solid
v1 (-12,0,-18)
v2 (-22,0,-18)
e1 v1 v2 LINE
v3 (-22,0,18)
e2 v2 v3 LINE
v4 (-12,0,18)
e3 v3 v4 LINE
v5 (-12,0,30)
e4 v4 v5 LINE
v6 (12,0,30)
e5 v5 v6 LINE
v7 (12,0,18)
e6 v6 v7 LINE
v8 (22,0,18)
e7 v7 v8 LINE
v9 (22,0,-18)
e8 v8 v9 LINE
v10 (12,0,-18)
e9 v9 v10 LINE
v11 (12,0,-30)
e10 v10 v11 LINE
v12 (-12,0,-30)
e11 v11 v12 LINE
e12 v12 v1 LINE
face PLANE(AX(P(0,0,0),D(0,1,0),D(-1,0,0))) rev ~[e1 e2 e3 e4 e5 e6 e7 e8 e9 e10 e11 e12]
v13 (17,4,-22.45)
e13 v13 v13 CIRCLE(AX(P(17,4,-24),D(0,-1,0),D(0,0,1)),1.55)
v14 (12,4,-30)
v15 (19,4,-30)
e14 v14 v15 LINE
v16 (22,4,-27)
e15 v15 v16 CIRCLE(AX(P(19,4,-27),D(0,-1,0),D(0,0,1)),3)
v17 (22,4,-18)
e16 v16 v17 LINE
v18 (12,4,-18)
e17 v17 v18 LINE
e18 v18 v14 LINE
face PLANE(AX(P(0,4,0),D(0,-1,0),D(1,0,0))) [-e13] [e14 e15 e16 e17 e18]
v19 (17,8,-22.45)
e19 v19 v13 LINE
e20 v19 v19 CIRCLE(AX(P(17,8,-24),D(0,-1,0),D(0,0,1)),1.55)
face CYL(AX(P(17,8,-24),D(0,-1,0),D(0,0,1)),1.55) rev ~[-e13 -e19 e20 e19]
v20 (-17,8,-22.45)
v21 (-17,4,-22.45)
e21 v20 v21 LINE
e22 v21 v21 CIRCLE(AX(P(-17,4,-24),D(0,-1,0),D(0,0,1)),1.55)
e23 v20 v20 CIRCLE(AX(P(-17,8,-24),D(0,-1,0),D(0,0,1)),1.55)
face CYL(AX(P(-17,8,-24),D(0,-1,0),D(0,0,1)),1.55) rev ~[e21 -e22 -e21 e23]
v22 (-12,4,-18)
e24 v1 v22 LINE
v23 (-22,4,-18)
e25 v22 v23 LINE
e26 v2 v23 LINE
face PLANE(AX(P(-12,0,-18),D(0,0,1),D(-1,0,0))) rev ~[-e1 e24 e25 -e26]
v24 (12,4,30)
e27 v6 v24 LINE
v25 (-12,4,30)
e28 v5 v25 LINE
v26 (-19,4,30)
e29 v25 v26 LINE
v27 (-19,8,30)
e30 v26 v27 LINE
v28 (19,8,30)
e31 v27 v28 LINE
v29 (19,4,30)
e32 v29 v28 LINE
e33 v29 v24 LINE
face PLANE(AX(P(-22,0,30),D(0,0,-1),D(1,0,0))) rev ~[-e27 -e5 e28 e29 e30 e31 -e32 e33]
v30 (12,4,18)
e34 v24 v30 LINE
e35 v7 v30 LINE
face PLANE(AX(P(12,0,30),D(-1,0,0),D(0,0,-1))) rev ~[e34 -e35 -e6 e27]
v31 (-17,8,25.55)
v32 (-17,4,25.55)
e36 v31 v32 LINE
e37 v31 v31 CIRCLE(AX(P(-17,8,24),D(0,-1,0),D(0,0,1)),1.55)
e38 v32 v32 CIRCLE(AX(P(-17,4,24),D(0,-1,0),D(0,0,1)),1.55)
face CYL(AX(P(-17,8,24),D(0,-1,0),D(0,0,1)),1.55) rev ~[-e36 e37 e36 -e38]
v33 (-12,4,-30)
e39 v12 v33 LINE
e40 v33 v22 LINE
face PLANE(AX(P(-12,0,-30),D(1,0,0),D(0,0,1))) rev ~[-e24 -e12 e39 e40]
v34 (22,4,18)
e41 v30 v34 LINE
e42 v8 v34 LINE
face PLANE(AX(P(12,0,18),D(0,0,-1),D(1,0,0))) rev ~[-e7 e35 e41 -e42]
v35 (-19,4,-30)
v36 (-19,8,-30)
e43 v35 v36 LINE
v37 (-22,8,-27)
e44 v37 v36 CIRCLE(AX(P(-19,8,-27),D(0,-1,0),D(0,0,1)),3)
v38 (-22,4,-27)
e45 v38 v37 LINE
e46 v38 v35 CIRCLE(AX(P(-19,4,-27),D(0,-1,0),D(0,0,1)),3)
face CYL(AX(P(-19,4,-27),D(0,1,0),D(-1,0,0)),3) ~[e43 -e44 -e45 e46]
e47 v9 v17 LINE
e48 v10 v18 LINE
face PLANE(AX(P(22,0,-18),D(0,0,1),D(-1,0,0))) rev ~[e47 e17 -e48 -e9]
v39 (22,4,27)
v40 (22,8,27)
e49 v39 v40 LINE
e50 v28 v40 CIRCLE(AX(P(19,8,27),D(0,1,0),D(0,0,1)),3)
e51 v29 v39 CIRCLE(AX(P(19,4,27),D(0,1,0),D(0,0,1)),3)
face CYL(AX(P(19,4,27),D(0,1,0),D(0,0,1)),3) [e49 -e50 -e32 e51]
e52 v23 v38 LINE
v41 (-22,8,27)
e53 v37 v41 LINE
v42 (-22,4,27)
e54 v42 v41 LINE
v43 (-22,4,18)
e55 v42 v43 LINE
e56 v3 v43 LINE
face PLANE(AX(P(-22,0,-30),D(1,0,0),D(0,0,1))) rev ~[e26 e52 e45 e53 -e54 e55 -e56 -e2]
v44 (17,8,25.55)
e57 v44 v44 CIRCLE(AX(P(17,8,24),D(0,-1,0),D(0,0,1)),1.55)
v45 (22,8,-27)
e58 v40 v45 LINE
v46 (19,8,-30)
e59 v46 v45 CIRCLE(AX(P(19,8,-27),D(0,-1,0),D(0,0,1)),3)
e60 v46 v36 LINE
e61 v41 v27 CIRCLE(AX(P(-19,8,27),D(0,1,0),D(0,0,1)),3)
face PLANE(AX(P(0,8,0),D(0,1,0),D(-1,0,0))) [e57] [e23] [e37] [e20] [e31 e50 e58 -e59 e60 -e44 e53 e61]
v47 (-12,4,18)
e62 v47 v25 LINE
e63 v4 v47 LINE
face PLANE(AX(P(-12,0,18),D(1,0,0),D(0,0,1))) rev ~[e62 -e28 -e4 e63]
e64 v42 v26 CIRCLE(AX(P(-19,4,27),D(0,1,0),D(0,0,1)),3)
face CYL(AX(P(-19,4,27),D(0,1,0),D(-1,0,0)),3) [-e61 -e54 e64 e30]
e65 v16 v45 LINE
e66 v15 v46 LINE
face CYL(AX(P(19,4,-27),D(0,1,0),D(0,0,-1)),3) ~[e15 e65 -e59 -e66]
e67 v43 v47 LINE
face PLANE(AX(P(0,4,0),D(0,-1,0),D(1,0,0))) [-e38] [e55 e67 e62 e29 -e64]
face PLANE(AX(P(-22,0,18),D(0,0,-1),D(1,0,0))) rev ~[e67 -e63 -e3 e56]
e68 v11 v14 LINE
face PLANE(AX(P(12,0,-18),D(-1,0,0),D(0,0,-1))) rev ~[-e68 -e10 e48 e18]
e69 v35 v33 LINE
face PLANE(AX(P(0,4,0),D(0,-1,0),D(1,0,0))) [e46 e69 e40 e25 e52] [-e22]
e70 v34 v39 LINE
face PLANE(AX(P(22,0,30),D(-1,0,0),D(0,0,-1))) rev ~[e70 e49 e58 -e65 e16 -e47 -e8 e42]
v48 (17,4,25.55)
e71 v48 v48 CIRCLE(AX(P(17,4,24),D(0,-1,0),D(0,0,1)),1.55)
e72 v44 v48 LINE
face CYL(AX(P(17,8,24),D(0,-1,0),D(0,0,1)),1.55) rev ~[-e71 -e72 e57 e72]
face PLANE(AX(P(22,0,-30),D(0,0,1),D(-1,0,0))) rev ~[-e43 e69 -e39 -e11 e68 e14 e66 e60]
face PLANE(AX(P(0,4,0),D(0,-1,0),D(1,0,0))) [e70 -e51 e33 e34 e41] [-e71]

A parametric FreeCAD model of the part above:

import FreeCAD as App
import Part
import Sketcher

V = App.Vector


def edges_at(feature, points):
    """Names of the edges that pass closest to the given points."""
    edges = feature.Shape.Edges
    near = lambda p: min(range(len(edges)), key=lambda i: edges[i].distToShape(Part.Vertex(*p))[0])
    return sorted({f"Edge{near(p) + 1}" for p in points})


def add_polygon(sketch, points):
    """Adds a closed chain of lines whose ends are joined by coincident constraints."""
    first, n = sketch.GeometryCount, len(points)
    for a, b in zip(points, points[1:] + points[:1]):
        sketch.addGeometry(Part.LineSegment(App.Vector(*a, 0), App.Vector(*b, 0)), False)
    for i in range(n):
        sketch.addConstraint(Sketcher.Constraint("Coincident", first + i, 2, first + (i + 1) % n, 1))

doc = App.newDocument("Part")
params = doc.addObject("Spreadsheet::Sheet", "Params")
for row, (alias, value) in enumerate([
    ("sketch1_width", "44 mm"),
    ("sketch1_height", "60 mm"),
    ("pad1_length", "8 mm"),
    ("sketch2_diameter", "3.1 mm"),
    ("hole_diameter", "3.1 mm"),
    ("hole_depth", "8 mm"),
    ("sketch3_width", "10 mm"),
    ("sketch3_height", "12 mm"),
    ("pocket1_length", "4 mm"),
    ("fillet_radius", "3 mm"),
], start=1):
    params.set(f"A{row}", alias)
    params.set(f"B{row}", "=" + value)
    params.setAlias(f"B{row}", alias)

body = doc.addObject("PartDesign::Body", "Body")

# Sketch on XZ plane
sketch1 = body.newObject("Sketcher::SketchObject", "Sketch")
sketch1.AttachmentSupport = (doc.getObject("XZ_Plane"), [""])
sketch1.MapMode = "FlatFace"
add_polygon(sketch1, [(-22, -30), (-22, 30), (22, 30), (22, -30)])  # lines 0-3
sketch1.addConstraint([
    Sketcher.Constraint("Vertical", 0),
    Sketcher.Constraint("Horizontal", 1),
    Sketcher.Constraint("Vertical", 2),
    Sketcher.Constraint("Horizontal", 3),
    Sketcher.Constraint("Symmetric", 0, 2, 2, 2, -1, 1),
    Sketcher.Constraint("DistanceX", 1, 1, 1, 2, 44.0),
    Sketcher.Constraint("DistanceY", 0, 1, 0, 2, 60.0),
])
sketch1.setExpression("Constraints[9]", "Params.sketch1_width")
sketch1.setExpression("Constraints[10]", "Params.sketch1_height")
pad1 = body.newObject("PartDesign::Pad", "Pad")
pad1.Profile = sketch1
pad1.setExpression("Length", "Params.pad1_length")
pad1.Reversed = True

# Sketch on XZ plane
sketch2 = body.newObject("Sketcher::SketchObject", "Sketch001")
sketch2.AttachmentSupport = (doc.getObject("XZ_Plane"), [""])
sketch2.MapMode = "FlatFace"
sketch2.AttachmentOffset = App.Placement(V(0, 0, -8), App.Rotation())
sketch2.addGeometry([
    Part.Circle(V(-17, 24, 0), V(0, 0, 1), 1.6),
    Part.Circle(V(-17, -24, 0), V(0, 0, 1), 1.6),
    Part.Circle(V(17, -24, 0), V(0, 0, 1), 1.6),
    Part.Circle(V(17, 24, 0), V(0, 0, 1), 1.6),
], False)
sketch2.addConstraint([
    Sketcher.Constraint("Equal", 0, 1),
    Sketcher.Constraint("Equal", 1, 2),
    Sketcher.Constraint("Equal", 2, 3),
    Sketcher.Constraint("Symmetric", 0, 3, 2, 3, -1, 1),
    Sketcher.Constraint("Symmetric", 1, 3, 3, 3, -1, 1),
    Sketcher.Constraint("Symmetric", 1, 3, 2, 3, -2),
    Sketcher.Constraint("Diameter", 0, 3.1),
    Sketcher.Constraint("DistanceX", 0, 3, -1, 1, 17.0),
    Sketcher.Constraint("DistanceY", -1, 1, 0, 3, 24.0),
])
sketch2.setExpression("Constraints[6]", "Params.sketch2_diameter")
doc.recompute()
hole = body.newObject("PartDesign::Hole", "Hole")
hole.Profile = sketch2
hole.ThreadType = "None"
hole.setExpression("Diameter", "Params.hole_diameter")
hole.DepthType = "Dimension"
hole.setExpression("Depth", "Params.hole_depth")
hole.DrillPoint = "Angled"
hole.DrillPointAngle = 118
hole.Reversed = True

# Sketch on XZ plane
sketch3 = body.newObject("Sketcher::SketchObject", "Sketch002")
sketch3.AttachmentSupport = (doc.getObject("XZ_Plane"), [""])
sketch3.MapMode = "FlatFace"
add_polygon(sketch3, [(-12, -30), (-12, -18), (-22, -18), (-22, -30)])  # lines 0-3
add_polygon(sketch3, [(-22, 30), (-22, 18), (-12, 18), (-12, 30)])  # lines 4-7
add_polygon(sketch3, [(12, -18), (12, -30), (22, -30), (22, -18)])  # lines 8-11
add_polygon(sketch3, [(22, 30), (12, 30), (12, 18), (22, 18)])  # lines 12-15
sketch3.addConstraint([
    Sketcher.Constraint("Vertical", 0),
    Sketcher.Constraint("Horizontal", 1),
    Sketcher.Constraint("Vertical", 2),
    Sketcher.Constraint("Horizontal", 3),
    Sketcher.Constraint("Vertical", 4),
    Sketcher.Constraint("Horizontal", 5),
    Sketcher.Constraint("Vertical", 6),
    Sketcher.Constraint("Horizontal", 7),
    Sketcher.Constraint("Vertical", 8),
    Sketcher.Constraint("Horizontal", 9),
    Sketcher.Constraint("Vertical", 10),
    Sketcher.Constraint("Horizontal", 11),
    Sketcher.Constraint("Horizontal", 12),
    Sketcher.Constraint("Vertical", 13),
    Sketcher.Constraint("Horizontal", 14),
    Sketcher.Constraint("Vertical", 15),
    Sketcher.Constraint("Symmetric", 6, 2, 8, 2, -1, 1),
    Sketcher.Constraint("Symmetric", 4, 2, 10, 2, -1, 1),
    Sketcher.Constraint("Symmetric", 3, 2, 12, 2, -1, 1),
    Sketcher.Constraint("Symmetric", 1, 2, 14, 2, -1, 1),
    Sketcher.Constraint("Symmetric", 3, 2, 8, 2, -2),
    Sketcher.Constraint("Symmetric", 1, 2, 10, 2, -2),
    Sketcher.Constraint("DistanceX", 1, 2, 1, 1, 10.0),
    Sketcher.Constraint("DistanceY", 0, 1, 0, 2, 12.0),
    Sketcher.Constraint("DistanceX", 0, 2, -1, 1, 12.0),
    Sketcher.Constraint("DistanceY", 0, 2, -1, 1, 18.0),
])
sketch3.setExpression("Constraints[38]", "Params.sketch3_width")
sketch3.setExpression("Constraints[39]", "Params.sketch3_height")
pocket1 = body.newObject("PartDesign::Pocket", "Pocket")
pocket1.Profile = sketch3
pocket1.setExpression("Length", "Params.pocket1_length")
doc.recompute()

fillet = body.newObject("PartDesign::Fillet", "Fillet")
fillet.Base = (pocket1, edges_at(pocket1, [
    (22, 6, -30),
    (-22, 6, -30),
    (22, 6, 30),
    (-22, 6, 30),
]))
fillet.setExpression("Radius", "Params.fillet_radius")

doc.recompute()
